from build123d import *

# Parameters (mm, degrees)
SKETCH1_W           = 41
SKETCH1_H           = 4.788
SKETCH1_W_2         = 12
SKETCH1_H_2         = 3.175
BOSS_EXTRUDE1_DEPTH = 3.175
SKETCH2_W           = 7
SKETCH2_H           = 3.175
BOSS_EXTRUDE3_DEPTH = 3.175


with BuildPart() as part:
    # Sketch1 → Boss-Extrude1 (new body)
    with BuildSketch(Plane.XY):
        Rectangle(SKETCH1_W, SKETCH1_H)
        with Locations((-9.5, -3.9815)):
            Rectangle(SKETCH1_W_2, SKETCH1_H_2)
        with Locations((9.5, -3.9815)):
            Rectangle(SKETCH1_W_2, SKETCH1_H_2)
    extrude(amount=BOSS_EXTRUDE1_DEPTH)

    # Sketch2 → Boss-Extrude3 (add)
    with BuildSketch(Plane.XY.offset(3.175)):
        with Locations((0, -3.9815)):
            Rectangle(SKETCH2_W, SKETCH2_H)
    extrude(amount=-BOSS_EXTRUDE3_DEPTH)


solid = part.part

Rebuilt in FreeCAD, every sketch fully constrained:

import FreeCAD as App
import Part
import Sketcher
from FreeCAD import Vector


def add_polygon(sketch, points):
    """Adds a closed chain of lines whose ends are joined by coincident constraints."""
    first, n = sketch.GeometryCount, len(points)
    for a, b in zip(points, points[1:] + points[:1]):
        sketch.addGeometry(Part.LineSegment(App.Vector(*a, 0), App.Vector(*b, 0)), False)
    for i in range(n):
        sketch.addConstraint(Sketcher.Constraint("Coincident", first + i, 2, first + (i + 1) % n, 1))

doc = App.newDocument("Part")
body = doc.addObject("PartDesign::Body", "Body")

# Sketch on XY plane
sketch1 = doc.addObject("Sketcher::SketchObject", "Sketch")
body.addObject(sketch1)
sketch1.AttachmentSupport = (doc.XY_Plane, [""])
sketch1.MapMode = "FlatFace"
add_polygon(sketch1, [(-20.5, 2.4), (-20.5, -2.4), (-15.5, -2.4), (-15.5, -5.6), (-3.5, -5.6), (-3.5, -2.4), (3.5, -2.4), (3.5, -5.6), (15.5, -5.6), (15.5, -2.4), (20.5, -2.4), (20.5, 2.4)])  # lines 0-11
sketch1.addConstraint([
    Sketcher.Constraint("Vertical", 0),
    Sketcher.Constraint("Horizontal", 1),
    Sketcher.Constraint("Vertical", 2),
    Sketcher.Constraint("Horizontal", 3),
    Sketcher.Constraint("Vertical", 4),
    Sketcher.Constraint("Horizontal", 5),
    Sketcher.Constraint("Vertical", 6),
    Sketcher.Constraint("Horizontal", 7),
    Sketcher.Constraint("Vertical", 8),
    Sketcher.Constraint("Horizontal", 9),
    Sketcher.Constraint("Vertical", 10),
    Sketcher.Constraint("Horizontal", 11),
    Sketcher.Constraint("Symmetric", 0, 2, 10, 2, -1, 1),
    Sketcher.Constraint("Symmetric", 3, 2, 6, 2, -2),
    Sketcher.Constraint("Symmetric", 1, 2, 8, 2, -2),
    Sketcher.Constraint("Horizontal", 1, 2, 4, 2),
    Sketcher.Constraint("DistanceX", 1, 1, 1, 2, 5.0),
    Sketcher.Constraint("DistanceX", 3, 1, 3, 2, 12.0),
    Sketcher.Constraint("DistanceX", 5, 1, 5, 2, 7.0),
    Sketcher.Constraint("DistanceY", 0, 2, 0, 1, 4.788),
    Sketcher.Constraint("DistanceY", 2, 2, 2, 1, 3.175),
])
pad1 = doc.addObject("PartDesign::Pad", "Pad")
body.addObject(pad1)
pad1.Profile = sketch1
pad1.Length = 3.175

# Sketch on XY plane
sketch2 = doc.addObject("Sketcher::SketchObject", "Sketch001")
body.addObject(sketch2)
sketch2.AttachmentSupport = (doc.XY_Plane, [""])
sketch2.MapMode = "FlatFace"
sketch2.AttachmentOffset = App.Placement(Vector(0, 0, 3.175), App.Rotation())
add_polygon(sketch2, [(-3.5, -2.4), (-3.5, -5.6), (3.5, -5.6), (3.5, -2.4)])  # lines 0-3
sketch2.addConstraint([
    Sketcher.Constraint("Vertical", 0),
    Sketcher.Constraint("Horizontal", 1),
    Sketcher.Constraint("Vertical", 2),
    Sketcher.Constraint("Horizontal", 3),
    Sketcher.Constraint("DistanceX", 1, 1, 1, 2, 7.0),
    Sketcher.Constraint("DistanceX", 0, 2, -1, 1, 3.5),
    Sketcher.Constraint("DistanceY", 0, 2, 0, 1, 3.175),
    Sketcher.Constraint("DistanceY", 0, 2, -1, 1, 5.569),
])
pad2 = doc.addObject("PartDesign::Pad", "Pad001")
body.addObject(pad2)
pad2.Profile = sketch2
pad2.Length = 3.175
pad2.Reversed = True

doc.recompute()
